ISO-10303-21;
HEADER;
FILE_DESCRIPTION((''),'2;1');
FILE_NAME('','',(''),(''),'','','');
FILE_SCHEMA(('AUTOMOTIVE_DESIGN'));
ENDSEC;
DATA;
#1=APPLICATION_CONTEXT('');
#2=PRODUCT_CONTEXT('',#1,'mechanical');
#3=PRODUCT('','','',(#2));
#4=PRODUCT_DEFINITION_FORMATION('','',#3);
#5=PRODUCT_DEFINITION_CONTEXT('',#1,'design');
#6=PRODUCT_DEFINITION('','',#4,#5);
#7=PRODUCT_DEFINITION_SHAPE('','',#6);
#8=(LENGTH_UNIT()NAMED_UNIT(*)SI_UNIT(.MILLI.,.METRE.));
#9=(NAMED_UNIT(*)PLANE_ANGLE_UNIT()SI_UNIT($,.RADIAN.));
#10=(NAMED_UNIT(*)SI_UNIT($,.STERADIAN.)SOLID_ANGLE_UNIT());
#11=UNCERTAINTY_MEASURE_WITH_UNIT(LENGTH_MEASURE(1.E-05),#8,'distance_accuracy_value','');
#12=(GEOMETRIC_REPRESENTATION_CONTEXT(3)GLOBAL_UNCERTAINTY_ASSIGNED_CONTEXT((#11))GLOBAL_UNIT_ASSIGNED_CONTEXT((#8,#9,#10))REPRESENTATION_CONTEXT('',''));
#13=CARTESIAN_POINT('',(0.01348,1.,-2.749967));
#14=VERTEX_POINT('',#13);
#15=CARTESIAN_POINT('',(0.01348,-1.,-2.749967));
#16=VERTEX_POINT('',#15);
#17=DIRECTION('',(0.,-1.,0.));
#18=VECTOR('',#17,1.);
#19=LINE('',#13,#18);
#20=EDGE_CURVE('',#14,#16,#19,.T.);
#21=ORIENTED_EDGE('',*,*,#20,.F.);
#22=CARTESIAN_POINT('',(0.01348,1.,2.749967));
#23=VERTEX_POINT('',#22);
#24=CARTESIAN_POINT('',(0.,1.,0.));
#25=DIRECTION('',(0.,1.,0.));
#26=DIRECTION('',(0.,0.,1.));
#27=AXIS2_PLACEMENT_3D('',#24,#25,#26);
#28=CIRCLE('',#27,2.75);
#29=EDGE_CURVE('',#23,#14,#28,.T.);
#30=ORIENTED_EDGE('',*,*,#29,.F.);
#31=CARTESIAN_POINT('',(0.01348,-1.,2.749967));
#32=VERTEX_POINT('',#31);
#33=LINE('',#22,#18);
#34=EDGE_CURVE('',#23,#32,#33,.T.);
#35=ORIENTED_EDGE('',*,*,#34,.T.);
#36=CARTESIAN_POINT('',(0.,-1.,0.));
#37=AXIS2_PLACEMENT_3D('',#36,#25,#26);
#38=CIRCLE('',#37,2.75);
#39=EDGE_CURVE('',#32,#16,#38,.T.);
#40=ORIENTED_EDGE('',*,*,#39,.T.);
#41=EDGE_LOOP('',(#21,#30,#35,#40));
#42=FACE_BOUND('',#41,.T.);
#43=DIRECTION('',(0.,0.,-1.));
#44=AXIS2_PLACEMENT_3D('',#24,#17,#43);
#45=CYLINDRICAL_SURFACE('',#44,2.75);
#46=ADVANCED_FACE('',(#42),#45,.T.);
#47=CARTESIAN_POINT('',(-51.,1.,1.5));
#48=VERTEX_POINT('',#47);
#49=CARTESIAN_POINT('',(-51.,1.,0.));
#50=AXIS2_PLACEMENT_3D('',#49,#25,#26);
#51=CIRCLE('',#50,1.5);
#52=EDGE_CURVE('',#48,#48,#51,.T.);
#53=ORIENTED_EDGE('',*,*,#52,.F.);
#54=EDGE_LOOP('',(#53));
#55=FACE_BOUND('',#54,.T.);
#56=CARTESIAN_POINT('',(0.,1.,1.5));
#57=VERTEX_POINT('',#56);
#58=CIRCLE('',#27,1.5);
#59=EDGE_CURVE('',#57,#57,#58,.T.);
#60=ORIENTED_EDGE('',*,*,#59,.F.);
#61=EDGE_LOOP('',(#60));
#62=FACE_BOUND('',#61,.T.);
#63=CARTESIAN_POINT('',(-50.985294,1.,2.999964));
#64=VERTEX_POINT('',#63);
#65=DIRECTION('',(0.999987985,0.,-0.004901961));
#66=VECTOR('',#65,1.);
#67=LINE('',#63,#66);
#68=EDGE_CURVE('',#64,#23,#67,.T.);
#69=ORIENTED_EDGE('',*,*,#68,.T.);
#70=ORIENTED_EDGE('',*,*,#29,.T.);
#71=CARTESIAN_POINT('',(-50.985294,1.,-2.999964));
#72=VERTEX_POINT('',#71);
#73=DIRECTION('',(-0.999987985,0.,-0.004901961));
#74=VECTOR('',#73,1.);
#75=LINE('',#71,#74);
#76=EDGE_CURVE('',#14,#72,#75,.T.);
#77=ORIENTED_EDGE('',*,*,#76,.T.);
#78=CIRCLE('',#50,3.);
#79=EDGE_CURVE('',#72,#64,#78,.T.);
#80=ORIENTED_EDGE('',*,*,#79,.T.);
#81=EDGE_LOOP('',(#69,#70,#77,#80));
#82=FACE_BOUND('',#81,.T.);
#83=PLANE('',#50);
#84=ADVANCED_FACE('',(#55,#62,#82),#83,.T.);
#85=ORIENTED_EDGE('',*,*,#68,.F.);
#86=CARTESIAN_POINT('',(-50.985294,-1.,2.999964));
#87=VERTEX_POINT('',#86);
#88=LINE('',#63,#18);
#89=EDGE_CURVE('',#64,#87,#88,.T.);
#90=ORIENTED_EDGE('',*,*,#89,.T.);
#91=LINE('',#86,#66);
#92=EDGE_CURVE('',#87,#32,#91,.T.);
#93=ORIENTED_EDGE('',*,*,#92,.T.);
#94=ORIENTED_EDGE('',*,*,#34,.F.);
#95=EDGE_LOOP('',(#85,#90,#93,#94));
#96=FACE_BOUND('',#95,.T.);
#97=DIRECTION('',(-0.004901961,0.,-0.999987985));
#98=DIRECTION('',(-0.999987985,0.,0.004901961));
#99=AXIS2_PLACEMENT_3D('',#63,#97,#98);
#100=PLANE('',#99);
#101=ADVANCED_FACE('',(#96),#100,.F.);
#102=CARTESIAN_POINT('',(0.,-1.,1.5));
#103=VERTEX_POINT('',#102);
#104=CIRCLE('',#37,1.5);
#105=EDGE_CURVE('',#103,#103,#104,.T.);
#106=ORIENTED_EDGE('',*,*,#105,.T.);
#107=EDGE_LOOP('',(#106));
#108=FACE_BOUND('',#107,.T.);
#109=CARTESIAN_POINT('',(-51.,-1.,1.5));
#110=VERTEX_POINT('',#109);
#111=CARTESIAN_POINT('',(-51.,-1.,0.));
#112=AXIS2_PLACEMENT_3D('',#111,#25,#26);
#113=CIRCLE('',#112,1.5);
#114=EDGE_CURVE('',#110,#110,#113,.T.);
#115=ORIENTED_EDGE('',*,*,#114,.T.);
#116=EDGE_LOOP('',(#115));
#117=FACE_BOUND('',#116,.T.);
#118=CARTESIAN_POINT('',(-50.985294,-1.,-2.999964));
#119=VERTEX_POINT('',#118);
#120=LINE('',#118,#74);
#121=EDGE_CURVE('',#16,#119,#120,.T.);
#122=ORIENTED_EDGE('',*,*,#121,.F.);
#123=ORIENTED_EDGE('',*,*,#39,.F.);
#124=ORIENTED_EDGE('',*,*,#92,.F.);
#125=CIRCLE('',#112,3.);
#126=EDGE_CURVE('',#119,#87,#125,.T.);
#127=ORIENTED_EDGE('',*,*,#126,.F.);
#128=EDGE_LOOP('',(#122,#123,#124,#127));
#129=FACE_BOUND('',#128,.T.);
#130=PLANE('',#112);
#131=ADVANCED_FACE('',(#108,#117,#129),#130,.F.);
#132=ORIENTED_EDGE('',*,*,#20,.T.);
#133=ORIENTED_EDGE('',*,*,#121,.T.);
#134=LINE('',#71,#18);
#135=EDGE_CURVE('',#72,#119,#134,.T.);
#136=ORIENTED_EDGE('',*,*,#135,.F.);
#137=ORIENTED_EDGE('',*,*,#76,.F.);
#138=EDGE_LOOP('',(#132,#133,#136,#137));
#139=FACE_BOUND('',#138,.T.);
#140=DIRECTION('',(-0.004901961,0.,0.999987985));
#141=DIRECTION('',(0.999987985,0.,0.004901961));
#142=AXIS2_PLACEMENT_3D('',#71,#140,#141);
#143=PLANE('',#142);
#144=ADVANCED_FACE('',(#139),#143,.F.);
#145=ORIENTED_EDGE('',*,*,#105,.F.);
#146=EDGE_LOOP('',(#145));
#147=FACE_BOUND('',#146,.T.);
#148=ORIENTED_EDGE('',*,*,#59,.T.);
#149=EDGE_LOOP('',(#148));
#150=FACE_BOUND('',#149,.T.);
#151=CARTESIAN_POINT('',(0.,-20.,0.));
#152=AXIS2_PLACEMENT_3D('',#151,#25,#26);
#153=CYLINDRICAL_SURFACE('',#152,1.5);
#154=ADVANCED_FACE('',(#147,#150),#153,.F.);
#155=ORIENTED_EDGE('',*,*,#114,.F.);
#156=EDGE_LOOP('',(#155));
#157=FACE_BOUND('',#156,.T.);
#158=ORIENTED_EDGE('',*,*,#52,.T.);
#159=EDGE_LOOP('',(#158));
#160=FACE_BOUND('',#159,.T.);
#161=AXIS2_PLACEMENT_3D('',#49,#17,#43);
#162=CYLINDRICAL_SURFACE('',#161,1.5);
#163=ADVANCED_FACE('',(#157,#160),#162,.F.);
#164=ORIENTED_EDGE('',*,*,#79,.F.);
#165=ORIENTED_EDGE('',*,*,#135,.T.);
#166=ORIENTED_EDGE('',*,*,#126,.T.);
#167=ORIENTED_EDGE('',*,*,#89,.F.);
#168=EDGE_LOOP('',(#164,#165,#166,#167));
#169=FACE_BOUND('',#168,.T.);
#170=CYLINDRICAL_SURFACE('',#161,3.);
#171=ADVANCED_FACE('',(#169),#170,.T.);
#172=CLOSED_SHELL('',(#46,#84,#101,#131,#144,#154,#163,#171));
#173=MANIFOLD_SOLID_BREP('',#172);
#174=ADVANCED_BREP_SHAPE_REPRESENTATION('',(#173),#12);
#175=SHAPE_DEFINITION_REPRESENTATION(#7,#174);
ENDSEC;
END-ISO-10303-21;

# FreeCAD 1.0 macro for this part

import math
import FreeCAD as App
import Part
import Sketcher
from FreeCAD import Vector

doc = App.newDocument("Part")
body = doc.addObject("PartDesign::Body", "Body")

# Sketch on XZ plane
sketch1 = doc.addObject("Sketcher::SketchObject", "Sketch")
body.addObject(sketch1)
sketch1.AttachmentSupport = (doc.XZ_Plane, [""])
sketch1.MapMode = "FlatFace"
sketch1.addGeometry(Part.Circle(Vector(0, 0, 0), Vector(0, 0, 1), 1.5), False)
sketch1.addConstraint([
    Sketcher.Constraint("Coincident", 0, 3, -1, 1),
    Sketcher.Constraint("Diameter", 0, 3.0),
])
pad1 = doc.addObject("PartDesign::Pad", "Pad")
body.addObject(pad1)
pad1.Profile = sketch1
pad1.Length = 40
pad1.Midplane = True

# Sketch on XZ plane
sketch2 = doc.addObject("Sketcher::SketchObject", "Sketch001")
body.addObject(sketch2)
sketch2.AttachmentSupport = (doc.XZ_Plane, [""])
sketch2.MapMode = "FlatFace"
sketch2.addGeometry([
    Part.LineSegment(Vector(0, -2.7, 0), Vector(-51, -3, 0)),  # 0
    Part.ArcOfCircle(Part.Circle(Vector(-51, 0, 0), Vector(0, 0, 1), 3), math.radians(90), math.radians(270)),  # 1
    Part.LineSegment(Vector(-51, 3, 0), Vector(0, 2.7, 0)),  # 2
    Part.ArcOfCircle(Part.Circle(Vector(0, 0, 0), Vector(0, 0, 1), 2.8), math.radians(-90), math.radians(90)),  # 3
    Part.Circle(Vector(-51, 0, 0), Vector(0, 0, 1), 1.5),  # 4
], False)
sketch2.addConstraint([
    Sketcher.Constraint("Tangent", 0, 2, 1, 2),
    Sketcher.Constraint("Tangent", 1, 1, 2, 1),
    Sketcher.Constraint("Tangent", 2, 2, 3, 2),
    Sketcher.Constraint("Tangent", 3, 1, 0, 1),
    Sketcher.Constraint("Coincident", 3, 3, -1, 1),
    Sketcher.Constraint("Coincident", 4, 3, 1, 3),
    Sketcher.Constraint("PointOnObject", 1, 3, -1),
    Sketcher.Constraint("Diameter", 4, 3.0),
    Sketcher.Constraint("Radius", 1, 3.0),
    Sketcher.Constraint("Radius", 3, 2.75),
    Sketcher.Constraint("DistanceX", 1, 3, -1, 1, 51.0),
])
pad2 = doc.addObject("PartDesign::Pad", "Pad001")
body.addObject(pad2)
pad2.Profile = sketch2
pad2.Length = 2
pad2.Midplane = True

# Sketch on XZ plane
sketch3 = doc.addObject("Sketcher::SketchObject", "Sketch002")
body.addObject(sketch3)
sketch3.AttachmentSupport = (doc.XZ_Plane, [""])
sketch3.MapMode = "FlatFace"
sketch3.AttachmentOffset = App.Placement(Vector(0, 0, -20), App.Rotation())
sketch3.addGeometry(Part.Circle(Vector(0, 0, 0), Vector(0, 0, 1), 1.5), False)
sketch3.addConstraint([
    Sketcher.Constraint("Coincident", 0, 3, -1, 1),
    Sketcher.Constraint("Diameter", 0, 3.0),
])
pocket1 = doc.addObject("PartDesign::Pocket", "Pocket")
body.addObject(pocket1)
pocket1.Profile = sketch3
pocket1.Type = "ThroughAll"
pocket1.Reversed = True

doc.recompute()
